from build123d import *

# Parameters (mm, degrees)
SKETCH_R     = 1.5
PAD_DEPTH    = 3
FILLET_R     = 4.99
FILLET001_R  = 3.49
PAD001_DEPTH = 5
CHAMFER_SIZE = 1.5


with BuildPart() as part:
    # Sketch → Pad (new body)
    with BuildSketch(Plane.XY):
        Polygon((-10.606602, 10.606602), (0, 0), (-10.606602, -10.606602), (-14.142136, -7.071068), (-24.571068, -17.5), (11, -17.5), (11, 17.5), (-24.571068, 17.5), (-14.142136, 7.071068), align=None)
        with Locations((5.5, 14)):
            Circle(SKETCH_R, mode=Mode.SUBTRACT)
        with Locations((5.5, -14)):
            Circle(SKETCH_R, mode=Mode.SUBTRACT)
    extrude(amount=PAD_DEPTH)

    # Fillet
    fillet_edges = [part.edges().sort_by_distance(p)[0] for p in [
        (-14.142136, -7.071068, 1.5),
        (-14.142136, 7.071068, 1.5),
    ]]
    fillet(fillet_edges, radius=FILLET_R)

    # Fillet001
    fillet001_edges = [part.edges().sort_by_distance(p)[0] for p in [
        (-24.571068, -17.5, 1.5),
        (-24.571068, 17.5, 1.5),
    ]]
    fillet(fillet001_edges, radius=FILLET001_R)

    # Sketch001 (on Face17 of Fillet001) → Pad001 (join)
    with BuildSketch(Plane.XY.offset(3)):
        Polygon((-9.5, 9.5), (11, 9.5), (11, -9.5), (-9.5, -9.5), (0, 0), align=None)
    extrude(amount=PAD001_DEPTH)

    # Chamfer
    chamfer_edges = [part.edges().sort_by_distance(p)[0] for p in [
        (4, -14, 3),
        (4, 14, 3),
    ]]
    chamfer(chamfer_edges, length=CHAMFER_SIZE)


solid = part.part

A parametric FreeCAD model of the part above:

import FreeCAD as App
import Part
import Sketcher
from FreeCAD import Vector
Q = App.Units.Quantity


def edges_at(feature, points):
    """Names of the edges that pass closest to the given points."""
    edges = feature.Shape.Edges
    near = lambda p: min(range(len(edges)), key=lambda i: edges[i].distToShape(Part.Vertex(*p))[0])
    return sorted({f"Edge{near(p) + 1}" for p in points})


def add_polygon(sketch, points):
    """Adds a closed chain of lines whose ends are joined by coincident constraints."""
    first, n = sketch.GeometryCount, len(points)
    for a, b in zip(points, points[1:] + points[:1]):
        sketch.addGeometry(Part.LineSegment(App.Vector(*a, 0), App.Vector(*b, 0)), False)
    for i in range(n):
        sketch.addConstraint(Sketcher.Constraint("Coincident", first + i, 2, first + (i + 1) % n, 1))

doc = App.newDocument("Part")
body = doc.addObject("PartDesign::Body", "Body")

# Sketch on XY plane
sketch1 = body.newObject("Sketcher::SketchObject", "Sketch")
sketch1.AttachmentSupport = (doc.getObject("XY_Plane"), [""])
sketch1.MapMode = "FlatFace"
add_polygon(sketch1, [(-10.606602, 10.606602), (0, 0), (-10.606602, -10.606602), (-14.142136, -7.071068), (-24.571068, -17.5), (11, -17.5), (11, 17.5), (-24.571068, 17.5), (-14.142136, 7.071068)])  # lines 0-8
sketch1.addGeometry(Part.Circle(Vector(5.5, -14, 0), Vector(0, 0, 1), 1.5), False)  # 9
sketch1.addGeometry(Part.Circle(Vector(5.5, 14, 0), Vector(0, 0, 1), 1.5), False)  # 10
sketch1.addConstraint([
    Sketcher.Constraint("Horizontal", 4),
    Sketcher.Constraint("Vertical", 5),
    Sketcher.Constraint("Horizontal", 6),
    Sketcher.Constraint("Coincident", 0, 2, -1, 1),
    Sketcher.Constraint("Equal", 9, 10),
    Sketcher.Constraint("Symmetric", 9, 3, 10, 3, -1),
    Sketcher.Constraint("Symmetric", 3, 2, 6, 2, -1),
    Sketcher.Constraint("Symmetric", 2, 2, 7, 2, -1),
    Sketcher.Constraint("Symmetric", 1, 2, 8, 2, -1),
    Sketcher.Constraint("Perpendicular", 0, 1),
    Sketcher.Constraint("Perpendicular", 1, 2),
    Sketcher.Constraint("Perpendicular", 2, 3),
    Sketcher.Constraint("Diameter", 9, Q("3 mm")),
    Sketcher.Constraint("DistanceY", 5, 1, 5, 2, Q("35 mm")),
    Sketcher.Constraint("Distance", 0, Q("15 mm")),
    Sketcher.Constraint("Distance", 2, Q("5 mm")),
    Sketcher.Constraint("DistanceY", 9, 3, -1, 1, Q("14 mm")),
    Sketcher.Constraint("DistanceX", -1, 1, 4, 2, Q("11 mm")),
    Sketcher.Constraint("DistanceX", -1, 1, 9, 3, Q("5.5 mm")),
])
pad1 = body.newObject("PartDesign::Pad", "Pad")
pad1.Profile = sketch1
pad1.Length = 3
doc.recompute()

fillet = body.newObject("PartDesign::Fillet", "Fillet")
fillet.Base = (pad1, edges_at(pad1, [(-14.142, -7.071, 1.5), (-14.142, 7.071, 1.5)]))
fillet.Radius = 4.99
doc.recompute()

fillet2 = body.newObject("PartDesign::Fillet", "Fillet001")
fillet2.Base = (fillet, edges_at(fillet, [(-24.571, -17.5, 1.5), (-24.571, 17.5, 1.5)]))
fillet2.Radius = 3.49

# Sketch on XY plane
sketch2 = body.newObject("Sketcher::SketchObject", "Sketch001")
sketch2.AttachmentSupport = (doc.getObject("XY_Plane"), [""])
sketch2.MapMode = "FlatFace"
sketch2.AttachmentOffset = App.Placement(Vector(0, 0, 3), App.Rotation())
add_polygon(sketch2, [(11, 9.5), (-9.5, 9.5), (0, 0), (-9.5, -9.5), (11, -9.5)])  # lines 0-4
sketch2.addConstraint([
    Sketcher.Constraint("Horizontal", 0),
    Sketcher.Constraint("Horizontal", 3),
    Sketcher.Constraint("Vertical", 4),
    Sketcher.Constraint("Coincident", 1, 2, -1, 1),
    Sketcher.Constraint("Symmetric", 0, 2, 2, 2, -1),
    Sketcher.Constraint("Perpendicular", 1, 2),
    Sketcher.Constraint("DistanceY", 4, 1, 4, 2, Q("19 mm")),
    Sketcher.Constraint("DistanceX", 0, 2, 0, 1, Q("20.5 mm")),
])
pad2 = body.newObject("PartDesign::Pad", "Pad001")
pad2.Profile = sketch2
pad2.Length = 5
doc.recompute()

chamfer = body.newObject("PartDesign::Chamfer", "Chamfer")
chamfer.Base = (pad2, edges_at(pad2, [(4, -14, 3), (4, 14, 3)]))
chamfer.Size = 1.5

doc.recompute()
